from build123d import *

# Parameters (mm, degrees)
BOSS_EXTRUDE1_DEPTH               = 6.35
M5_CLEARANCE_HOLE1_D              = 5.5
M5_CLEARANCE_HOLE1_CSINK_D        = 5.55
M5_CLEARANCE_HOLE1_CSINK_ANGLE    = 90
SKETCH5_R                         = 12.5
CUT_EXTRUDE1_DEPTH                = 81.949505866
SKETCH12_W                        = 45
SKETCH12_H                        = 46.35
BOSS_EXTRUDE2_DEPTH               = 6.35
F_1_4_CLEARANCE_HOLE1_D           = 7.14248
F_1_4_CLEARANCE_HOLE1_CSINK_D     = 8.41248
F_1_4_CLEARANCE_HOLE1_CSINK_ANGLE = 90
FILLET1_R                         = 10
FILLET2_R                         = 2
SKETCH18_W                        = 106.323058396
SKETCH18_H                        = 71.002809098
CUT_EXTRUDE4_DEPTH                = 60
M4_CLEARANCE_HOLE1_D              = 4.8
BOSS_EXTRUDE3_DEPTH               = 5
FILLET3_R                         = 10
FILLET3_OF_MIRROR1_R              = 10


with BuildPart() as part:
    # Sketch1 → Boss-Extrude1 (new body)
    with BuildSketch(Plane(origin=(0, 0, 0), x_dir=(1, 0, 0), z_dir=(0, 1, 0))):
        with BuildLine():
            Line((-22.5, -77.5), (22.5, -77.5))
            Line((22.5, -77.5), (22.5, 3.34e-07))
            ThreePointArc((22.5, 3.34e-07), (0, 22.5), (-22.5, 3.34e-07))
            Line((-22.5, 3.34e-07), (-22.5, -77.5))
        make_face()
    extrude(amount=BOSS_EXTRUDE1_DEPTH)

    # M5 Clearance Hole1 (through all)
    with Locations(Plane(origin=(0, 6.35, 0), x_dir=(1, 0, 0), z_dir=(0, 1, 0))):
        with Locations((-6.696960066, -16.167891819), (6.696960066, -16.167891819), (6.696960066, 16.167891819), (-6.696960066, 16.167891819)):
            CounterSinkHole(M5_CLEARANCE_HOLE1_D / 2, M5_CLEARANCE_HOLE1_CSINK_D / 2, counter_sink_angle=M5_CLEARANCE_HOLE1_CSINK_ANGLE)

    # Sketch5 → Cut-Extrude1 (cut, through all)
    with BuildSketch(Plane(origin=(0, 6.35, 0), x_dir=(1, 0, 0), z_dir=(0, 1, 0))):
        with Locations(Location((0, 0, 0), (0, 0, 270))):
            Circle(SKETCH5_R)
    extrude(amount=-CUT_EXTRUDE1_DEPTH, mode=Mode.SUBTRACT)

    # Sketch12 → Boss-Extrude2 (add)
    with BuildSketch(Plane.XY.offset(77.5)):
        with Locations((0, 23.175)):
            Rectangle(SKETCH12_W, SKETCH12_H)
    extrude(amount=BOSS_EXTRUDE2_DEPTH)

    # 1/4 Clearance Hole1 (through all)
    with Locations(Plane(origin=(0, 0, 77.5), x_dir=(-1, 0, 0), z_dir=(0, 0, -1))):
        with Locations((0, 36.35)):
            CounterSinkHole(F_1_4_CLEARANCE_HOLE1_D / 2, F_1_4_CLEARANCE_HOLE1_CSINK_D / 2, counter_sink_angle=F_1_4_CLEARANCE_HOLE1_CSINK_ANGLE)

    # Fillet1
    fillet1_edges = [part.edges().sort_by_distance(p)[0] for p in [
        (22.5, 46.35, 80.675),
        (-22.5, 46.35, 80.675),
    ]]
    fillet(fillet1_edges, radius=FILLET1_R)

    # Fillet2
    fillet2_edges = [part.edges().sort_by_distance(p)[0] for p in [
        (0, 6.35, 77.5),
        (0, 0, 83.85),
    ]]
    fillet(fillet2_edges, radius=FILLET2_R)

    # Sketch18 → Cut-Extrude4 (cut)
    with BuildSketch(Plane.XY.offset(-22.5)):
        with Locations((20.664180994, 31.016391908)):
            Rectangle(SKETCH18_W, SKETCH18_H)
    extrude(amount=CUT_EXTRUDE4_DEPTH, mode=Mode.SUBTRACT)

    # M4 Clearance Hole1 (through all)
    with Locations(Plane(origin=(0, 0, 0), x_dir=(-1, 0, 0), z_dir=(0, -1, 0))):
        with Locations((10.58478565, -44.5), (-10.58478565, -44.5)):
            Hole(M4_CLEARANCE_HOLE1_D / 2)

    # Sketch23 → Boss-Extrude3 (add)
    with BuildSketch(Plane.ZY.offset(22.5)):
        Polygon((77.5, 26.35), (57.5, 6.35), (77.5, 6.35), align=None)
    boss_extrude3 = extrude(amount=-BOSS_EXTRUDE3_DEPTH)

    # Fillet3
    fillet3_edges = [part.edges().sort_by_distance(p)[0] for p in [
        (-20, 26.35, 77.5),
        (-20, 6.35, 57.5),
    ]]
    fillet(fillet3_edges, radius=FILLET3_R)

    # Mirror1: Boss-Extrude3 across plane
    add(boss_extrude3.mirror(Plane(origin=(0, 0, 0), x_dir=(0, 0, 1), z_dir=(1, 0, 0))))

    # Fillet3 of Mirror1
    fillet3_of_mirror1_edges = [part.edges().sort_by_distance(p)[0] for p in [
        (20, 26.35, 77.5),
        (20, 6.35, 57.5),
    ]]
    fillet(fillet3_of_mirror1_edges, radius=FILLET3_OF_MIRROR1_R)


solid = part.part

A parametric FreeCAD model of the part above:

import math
import FreeCAD as App
import Part
import Sketcher
from FreeCAD import Vector
Q = App.Units.Quantity


def edges_at(feature, points):
    """Names of the edges that pass closest to the given points."""
    edges = feature.Shape.Edges
    near = lambda p: min(range(len(edges)), key=lambda i: edges[i].distToShape(Part.Vertex(*p))[0])
    return sorted({f"Edge{near(p) + 1}" for p in points})

doc = App.newDocument("Part")
params = doc.addObject("Spreadsheet::Sheet", "Params")
for row, (alias, value) in enumerate([
    ("sketch1_radius", "22.5 mm"),
    ("sketch1_height", "77.5 mm"),
    ("pad1_length", "6.35 mm"),
    ("sketch2_diameter", "5.5 mm"),
    ("hole_diameter", "5.5 mm"),
    ("hole_csink_diameter", "5.55 mm"),
    ("sketch3_diameter", "25 mm"),
    ("sketch4_width", "45 mm"),
    ("sketch4_height", "46.35 mm"),
    ("pad2_length", "6.35 mm"),
    ("hole2_diameter", "7.14248 mm"),
    ("hole2_csink_diameter", "8.41248 mm"),
    ("fillet_radius", "10 mm"),
    ("fillet2_radius", "2 mm"),
    ("pocket2_length", "60 mm"),
    ("sketch7_diameter", "4.8 mm"),
    ("hole3_diameter", "4.8 mm"),
    ("sketch8_width", "20 mm"),
    ("pad3_length", "5 mm"),
    ("fillet3_radius", "10 mm"),
    ("fillet4_radius", "10 mm"),
], start=1):
    params.set(f"A{row}", alias)
    params.set(f"B{row}", "=" + value)
    params.setAlias(f"B{row}", alias)

body = doc.addObject("PartDesign::Body", "Body")

# Sketch on XZ plane
sketch1 = doc.addObject("Sketcher::SketchObject", "Sketch")
body.addObject(sketch1)
sketch1.AttachmentSupport = (doc.XZ_Plane, [""])
sketch1.MapMode = "FlatFace"
sketch1.addGeometry(Part.LineSegment(Vector(-22, 78, 0), Vector(22, 78, 0)), False)
sketch1.addGeometry(Part.LineSegment(Vector(22, 78, 0), Vector(22, 0, 0)), False)
sketch1.addGeometry(Part.ArcOfCircle(Part.Circle(Vector(0, 0, 0), Vector(0, 0, 1), 22), math.radians(-180), math.radians(0)), False)
sketch1.addGeometry(Part.LineSegment(Vector(-22, 0, 0), Vector(-22, 78, 0)), False)
sketch1.addConstraint(Sketcher.Constraint("Coincident", 0, 2, 1, 1))
sketch1.addConstraint(Sketcher.Constraint("Tangent", 1, 2, 2, 2))
sketch1.addConstraint(Sketcher.Constraint("Tangent", 2, 1, 3, 1))
sketch1.addConstraint(Sketcher.Constraint("Coincident", 3, 2, 0, 1))
sketch1.addConstraint(Sketcher.Constraint("Horizontal", 0))
sketch1.addConstraint(Sketcher.Constraint("Vertical", 1))
sketch1.addConstraint(Sketcher.Constraint("Vertical", 3))
sketch1.addConstraint(Sketcher.Constraint("Coincident", 2, 3, -1, 1))
sketch1.addConstraint(Sketcher.Constraint("Radius", 2, Q("22.5 mm")))
sketch1.addConstraint(Sketcher.Constraint("DistanceY", 1, 2, 1, 1, Q("77.5 mm")))
sketch1.setExpression("Constraints[8]", "Params.sketch1_radius")
sketch1.setExpression("Constraints[9]", "Params.sketch1_height")
pad1 = doc.addObject("PartDesign::Pad", "Pad")
body.addObject(pad1)
pad1.Profile = sketch1
pad1.setExpression("Length", "Params.pad1_length")
pad1.Reversed = True

# Sketch on XZ plane
sketch2 = doc.addObject("Sketcher::SketchObject", "Sketch001")
body.addObject(sketch2)
sketch2.AttachmentSupport = (doc.XZ_Plane, [""])
sketch2.MapMode = "FlatFace"
sketch2.AttachmentOffset = App.Placement(Vector(0, 0, -6.35), App.Rotation())
sketch2.addGeometry(Part.Circle(Vector(-6.7, 16.2, 0), Vector(0, 0, 1), 2.8), False)
sketch2.addGeometry(Part.Circle(Vector(6.7, 16.2, 0), Vector(0, 0, 1), 2.8), False)
sketch2.addGeometry(Part.Circle(Vector(6.7, -16.2, 0), Vector(0, 0, 1), 2.8), False)
sketch2.addGeometry(Part.Circle(Vector(-6.7, -16.2, 0), Vector(0, 0, 1), 2.8), False)
sketch2.addConstraint(Sketcher.Constraint("Equal", 0, 1))
sketch2.addConstraint(Sketcher.Constraint("Equal", 1, 2))
sketch2.addConstraint(Sketcher.Constraint("Equal", 2, 3))
sketch2.addConstraint(Sketcher.Constraint("Symmetric", 0, 3, 2, 3, -1, 1))
sketch2.addConstraint(Sketcher.Constraint("Symmetric", 1, 3, 3, 3, -1, 1))
sketch2.addConstraint(Sketcher.Constraint("Symmetric", 0, 3, 1, 3, -2))
sketch2.addConstraint(Sketcher.Constraint("Diameter", 0, Q("5.5 mm")))
sketch2.addConstraint(Sketcher.Constraint("DistanceX", 0, 3, -1, 1, Q("6.69696 mm")))
sketch2.addConstraint(Sketcher.Constraint("DistanceY", -1, 1, 0, 3, Q("16.167892 mm")))
sketch2.setExpression("Constraints[6]", "Params.sketch2_diameter")
doc.recompute()
hole = doc.addObject("PartDesign::Hole", "Hole")
body.addObject(hole)
hole.Profile = sketch2
hole.ThreadType = "None"
hole.setExpression("Diameter", "Params.hole_diameter")
hole.DepthType = "ThroughAll"
hole.HoleCutType = "Countersink"
hole.setExpression("HoleCutDiameter", "Params.hole_csink_diameter")
hole.HoleCutCountersinkAngle = 90
hole.Reversed = True

# Sketch on XZ plane
sketch3 = doc.addObject("Sketcher::SketchObject", "Sketch002")
body.addObject(sketch3)
sketch3.AttachmentSupport = (doc.XZ_Plane, [""])
sketch3.MapMode = "FlatFace"
sketch3.AttachmentOffset = App.Placement(Vector(0, 0, -6.35), App.Rotation())
sketch3.addGeometry(Part.Circle(Vector(0, 0, 0), Vector(0, 0, 1), 12), False)
sketch3.addConstraint(Sketcher.Constraint("Coincident", 0, 3, -1, 1))
sketch3.addConstraint(Sketcher.Constraint("Diameter", 0, Q("25 mm")))
sketch3.setExpression("Constraints[1]", "Params.sketch3_diameter")
pocket1 = doc.addObject("PartDesign::Pocket", "Pocket")
body.addObject(pocket1)
pocket1.Profile = sketch3
pocket1.Type = "ThroughAll"
pocket1.Reversed = True

# Sketch on XY plane
sketch4 = doc.addObject("Sketcher::SketchObject", "Sketch003")
body.addObject(sketch4)
sketch4.AttachmentSupport = (doc.XY_Plane, [""])
sketch4.MapMode = "FlatFace"
sketch4.AttachmentOffset = App.Placement(Vector(0, 0, 77.5), App.Rotation())
sketch4.addGeometry(Part.LineSegment(Vector(-22, 46, 0), Vector(-22, 0, 0)), False)
sketch4.addGeometry(Part.LineSegment(Vector(-22, 0, 0), Vector(22, 0, 0)), False)
sketch4.addGeometry(Part.LineSegment(Vector(22, 0, 0), Vector(22, 46, 0)), False)
sketch4.addGeometry(Part.LineSegment(Vector(22, 46, 0), Vector(-22, 46, 0)), False)
sketch4.addConstraint(Sketcher.Constraint("Coincident", 0, 2, 1, 1))
sketch4.addConstraint(Sketcher.Constraint("Coincident", 1, 2, 2, 1))
sketch4.addConstraint(Sketcher.Constraint("Coincident", 2, 2, 3, 1))
sketch4.addConstraint(Sketcher.Constraint("Coincident", 3, 2, 0, 1))
sketch4.addConstraint(Sketcher.Constraint("Vertical", 0))
sketch4.addConstraint(Sketcher.Constraint("Horizontal", 1))
sketch4.addConstraint(Sketcher.Constraint("Vertical", 2))
sketch4.addConstraint(Sketcher.Constraint("Horizontal", 3))
sketch4.addConstraint(Sketcher.Constraint("Symmetric", 0, 2, 1, 2, -1, 1))
sketch4.addConstraint(Sketcher.Constraint("DistanceX", 1, 1, 1, 2, Q("45 mm")))
sketch4.addConstraint(Sketcher.Constraint("DistanceY", 0, 2, 0, 1, Q("46.35 mm")))
sketch4.setExpression("Constraints[9]", "Params.sketch4_width")
sketch4.setExpression("Constraints[10]", "Params.sketch4_height")
pad2 = doc.addObject("PartDesign::Pad", "Pad001")
body.addObject(pad2)
pad2.Profile = sketch4
pad2.setExpression("Length", "Params.pad2_length")

# Sketch on XY plane
sketch5 = doc.addObject("Sketcher::SketchObject", "Sketch004")
body.addObject(sketch5)
sketch5.AttachmentSupport = (doc.XY_Plane, [""])
sketch5.MapMode = "FlatFace"
sketch5.AttachmentOffset = App.Placement(Vector(0, 0, 77.5), App.Rotation())
sketch5.addGeometry(Part.Circle(Vector(0, 36.4, 0), Vector(0, 0, 1), 3.6), False)
sketch5.addConstraint(Sketcher.Constraint("PointOnObject", 0, 3, -2))
sketch5.addConstraint(Sketcher.Constraint("Diameter", 0, Q("7.14248 mm")))
sketch5.addConstraint(Sketcher.Constraint("DistanceY", -1, 1, 0, 3, Q("36.35 mm")))
doc.recompute()
hole2 = doc.addObject("PartDesign::Hole", "Hole001")
body.addObject(hole2)
hole2.Profile = sketch5
hole2.ThreadType = "None"
hole2.setExpression("Diameter", "Params.hole2_diameter")
hole2.DepthType = "ThroughAll"
hole2.HoleCutType = "Countersink"
hole2.setExpression("HoleCutDiameter", "Params.hole2_csink_diameter")
hole2.HoleCutCountersinkAngle = 90
hole2.Reversed = True
doc.recompute()

fillet = doc.addObject("PartDesign::Fillet", "Fillet")
body.addObject(fillet)
fillet.Base = (hole2, edges_at(hole2, [(22.5, 46.35, 80.675), (-22.5, 46.35, 80.675)]))
fillet.setExpression("Radius", "Params.fillet_radius")
doc.recompute()

fillet2 = doc.addObject("PartDesign::Fillet", "Fillet001")
body.addObject(fillet2)
fillet2.Base = (fillet, edges_at(fillet, [(0, 6.35, 77.5), (0, 0, 83.85)]))
fillet2.setExpression("Radius", "Params.fillet2_radius")

# Sketch on XY plane
sketch6 = doc.addObject("Sketcher::SketchObject", "Sketch005")
body.addObject(sketch6)
sketch6.AttachmentSupport = (doc.XY_Plane, [""])
sketch6.MapMode = "FlatFace"
sketch6.AttachmentOffset = App.Placement(Vector(0, 0, -22.5), App.Rotation())
sketch6.addGeometry(Part.LineSegment(Vector(-32, 67, 0), Vector(-32, -4, 0)), False)
sketch6.addGeometry(Part.LineSegment(Vector(-32, -4, 0), Vector(74, -4, 0)), False)
sketch6.addGeometry(Part.LineSegment(Vector(74, -4, 0), Vector(74, 67, 0)), False)
sketch6.addGeometry(Part.LineSegment(Vector(74, 67, 0), Vector(-32, 67, 0)), False)
sketch6.addConstraint(Sketcher.Constraint("Coincident", 0, 2, 1, 1))
sketch6.addConstraint(Sketcher.Constraint("Coincident", 1, 2, 2, 1))
sketch6.addConstraint(Sketcher.Constraint("Coincident", 2, 2, 3, 1))
sketch6.addConstraint(Sketcher.Constraint("Coincident", 3, 2, 0, 1))
sketch6.addConstraint(Sketcher.Constraint("Vertical", 0))
sketch6.addConstraint(Sketcher.Constraint("Horizontal", 1))
sketch6.addConstraint(Sketcher.Constraint("Vertical", 2))
sketch6.addConstraint(Sketcher.Constraint("Horizontal", 3))
sketch6.addConstraint(Sketcher.Constraint("DistanceX", 1, 1, 1, 2, Q("106.323058 mm")))
sketch6.addConstraint(Sketcher.Constraint("DistanceY", 0, 2, 0, 1, Q("71.002809 mm")))
sketch6.addConstraint(Sketcher.Constraint("DistanceX", 0, 2, -1, 1, Q("32.497348 mm")))
sketch6.addConstraint(Sketcher.Constraint("DistanceY", 0, 2, -1, 1, Q("4.485013 mm")))
pocket2 = doc.addObject("PartDesign::Pocket", "Pocket001")
body.addObject(pocket2)
pocket2.Profile = sketch6
pocket2.setExpression("Length", "Params.pocket2_length")
pocket2.Reversed = True

# Sketch on XZ plane
sketch7 = doc.addObject("Sketcher::SketchObject", "Sketch006")
body.addObject(sketch7)
sketch7.AttachmentSupport = (doc.XZ_Plane, [""])
sketch7.MapMode = "FlatFace"
sketch7.addGeometry(Part.Circle(Vector(-10.6, 44.5, 0), Vector(0, 0, 1), 2.4), False)
sketch7.addGeometry(Part.Circle(Vector(10.6, 44.5, 0), Vector(0, 0, 1), 2.4), False)
sketch7.addConstraint(Sketcher.Constraint("Equal", 0, 1))
sketch7.addConstraint(Sketcher.Constraint("Symmetric", 0, 3, 1, 3, -2))
sketch7.addConstraint(Sketcher.Constraint("Diameter", 0, Q("4.8 mm")))
sketch7.addConstraint(Sketcher.Constraint("DistanceY", -1, 1, 0, 3, Q("44.5 mm")))
sketch7.addConstraint(Sketcher.Constraint("DistanceX", 0, 3, 1, 3, Q("21.169571 mm")))
sketch7.setExpression("Constraints[2]", "Params.sketch7_diameter")
doc.recompute()
hole3 = doc.addObject("PartDesign::Hole", "Hole002")
body.addObject(hole3)
hole3.Profile = sketch7
hole3.ThreadType = "None"
hole3.setExpression("Diameter", "Params.hole3_diameter")
hole3.DepthType = "ThroughAll"

# Sketch on YZ plane
sketch8 = doc.addObject("Sketcher::SketchObject", "Sketch007")
body.addObject(sketch8)
sketch8.AttachmentSupport = (doc.YZ_Plane, [""])
sketch8.MapMode = "FlatFace"
sketch8.AttachmentOffset = App.Placement(Vector(0, 0, -22.5), App.Rotation())
sketch8.addGeometry(Part.LineSegment(Vector(26, 78, 0), Vector(6, 58, 0)), False)
sketch8.addGeometry(Part.LineSegment(Vector(6, 58, 0), Vector(6, 78, 0)), False)
sketch8.addGeometry(Part.LineSegment(Vector(6, 78, 0), Vector(26, 78, 0)), False)
sketch8.addConstraint(Sketcher.Constraint("Coincident", 0, 2, 1, 1))
sketch8.addConstraint(Sketcher.Constraint("Coincident", 1, 2, 2, 1))
sketch8.addConstraint(Sketcher.Constraint("Coincident", 2, 2, 0, 1))
sketch8.addConstraint(Sketcher.Constraint("Vertical", 1))
sketch8.addConstraint(Sketcher.Constraint("Horizontal", 2))
sketch8.addConstraint(Sketcher.Constraint("Equal", 2, 1))
sketch8.addConstraint(Sketcher.Constraint("DistanceX", 2, 1, 2, 2, Q("20 mm")))
sketch8.addConstraint(Sketcher.Constraint("DistanceY", -1, 1, 0, 2, Q("57.5 mm")))
sketch8.addConstraint(Sketcher.Constraint("DistanceX", -1, 1, 0, 2, Q("6.35 mm")))
sketch8.setExpression("Constraints[6]", "Params.sketch8_width")
pad3 = doc.addObject("PartDesign::Pad", "Pad002")
body.addObject(pad3)
pad3.Profile = sketch8
pad3.setExpression("Length", "Params.pad3_length")
doc.recompute()

fillet3 = doc.addObject("PartDesign::Fillet", "Fillet002")
body.addObject(fillet3)
fillet3.Base = (pad3, edges_at(pad3, [(-20, 26.35, 77.5), (-20, 6.35, 57.5)]))
fillet3.setExpression("Radius", "Params.fillet3_radius")
doc.recompute()

mirrored = doc.addObject("PartDesign::Mirrored", "Mirrored")
body.addObject(mirrored)
mirrored.Originals = [pad3]
mirrored.MirrorPlane = (doc.YZ_Plane, [""])
body.Tip = mirrored
doc.recompute()

fillet4 = doc.addObject("PartDesign::Fillet", "Fillet003")
body.addObject(fillet4)
fillet4.Base = (mirrored, edges_at(mirrored, [(20, 26.35, 77.5), (20, 6.35, 57.5)]))
fillet4.setExpression("Radius", "Params.fillet4_radius")

doc.recompute()
